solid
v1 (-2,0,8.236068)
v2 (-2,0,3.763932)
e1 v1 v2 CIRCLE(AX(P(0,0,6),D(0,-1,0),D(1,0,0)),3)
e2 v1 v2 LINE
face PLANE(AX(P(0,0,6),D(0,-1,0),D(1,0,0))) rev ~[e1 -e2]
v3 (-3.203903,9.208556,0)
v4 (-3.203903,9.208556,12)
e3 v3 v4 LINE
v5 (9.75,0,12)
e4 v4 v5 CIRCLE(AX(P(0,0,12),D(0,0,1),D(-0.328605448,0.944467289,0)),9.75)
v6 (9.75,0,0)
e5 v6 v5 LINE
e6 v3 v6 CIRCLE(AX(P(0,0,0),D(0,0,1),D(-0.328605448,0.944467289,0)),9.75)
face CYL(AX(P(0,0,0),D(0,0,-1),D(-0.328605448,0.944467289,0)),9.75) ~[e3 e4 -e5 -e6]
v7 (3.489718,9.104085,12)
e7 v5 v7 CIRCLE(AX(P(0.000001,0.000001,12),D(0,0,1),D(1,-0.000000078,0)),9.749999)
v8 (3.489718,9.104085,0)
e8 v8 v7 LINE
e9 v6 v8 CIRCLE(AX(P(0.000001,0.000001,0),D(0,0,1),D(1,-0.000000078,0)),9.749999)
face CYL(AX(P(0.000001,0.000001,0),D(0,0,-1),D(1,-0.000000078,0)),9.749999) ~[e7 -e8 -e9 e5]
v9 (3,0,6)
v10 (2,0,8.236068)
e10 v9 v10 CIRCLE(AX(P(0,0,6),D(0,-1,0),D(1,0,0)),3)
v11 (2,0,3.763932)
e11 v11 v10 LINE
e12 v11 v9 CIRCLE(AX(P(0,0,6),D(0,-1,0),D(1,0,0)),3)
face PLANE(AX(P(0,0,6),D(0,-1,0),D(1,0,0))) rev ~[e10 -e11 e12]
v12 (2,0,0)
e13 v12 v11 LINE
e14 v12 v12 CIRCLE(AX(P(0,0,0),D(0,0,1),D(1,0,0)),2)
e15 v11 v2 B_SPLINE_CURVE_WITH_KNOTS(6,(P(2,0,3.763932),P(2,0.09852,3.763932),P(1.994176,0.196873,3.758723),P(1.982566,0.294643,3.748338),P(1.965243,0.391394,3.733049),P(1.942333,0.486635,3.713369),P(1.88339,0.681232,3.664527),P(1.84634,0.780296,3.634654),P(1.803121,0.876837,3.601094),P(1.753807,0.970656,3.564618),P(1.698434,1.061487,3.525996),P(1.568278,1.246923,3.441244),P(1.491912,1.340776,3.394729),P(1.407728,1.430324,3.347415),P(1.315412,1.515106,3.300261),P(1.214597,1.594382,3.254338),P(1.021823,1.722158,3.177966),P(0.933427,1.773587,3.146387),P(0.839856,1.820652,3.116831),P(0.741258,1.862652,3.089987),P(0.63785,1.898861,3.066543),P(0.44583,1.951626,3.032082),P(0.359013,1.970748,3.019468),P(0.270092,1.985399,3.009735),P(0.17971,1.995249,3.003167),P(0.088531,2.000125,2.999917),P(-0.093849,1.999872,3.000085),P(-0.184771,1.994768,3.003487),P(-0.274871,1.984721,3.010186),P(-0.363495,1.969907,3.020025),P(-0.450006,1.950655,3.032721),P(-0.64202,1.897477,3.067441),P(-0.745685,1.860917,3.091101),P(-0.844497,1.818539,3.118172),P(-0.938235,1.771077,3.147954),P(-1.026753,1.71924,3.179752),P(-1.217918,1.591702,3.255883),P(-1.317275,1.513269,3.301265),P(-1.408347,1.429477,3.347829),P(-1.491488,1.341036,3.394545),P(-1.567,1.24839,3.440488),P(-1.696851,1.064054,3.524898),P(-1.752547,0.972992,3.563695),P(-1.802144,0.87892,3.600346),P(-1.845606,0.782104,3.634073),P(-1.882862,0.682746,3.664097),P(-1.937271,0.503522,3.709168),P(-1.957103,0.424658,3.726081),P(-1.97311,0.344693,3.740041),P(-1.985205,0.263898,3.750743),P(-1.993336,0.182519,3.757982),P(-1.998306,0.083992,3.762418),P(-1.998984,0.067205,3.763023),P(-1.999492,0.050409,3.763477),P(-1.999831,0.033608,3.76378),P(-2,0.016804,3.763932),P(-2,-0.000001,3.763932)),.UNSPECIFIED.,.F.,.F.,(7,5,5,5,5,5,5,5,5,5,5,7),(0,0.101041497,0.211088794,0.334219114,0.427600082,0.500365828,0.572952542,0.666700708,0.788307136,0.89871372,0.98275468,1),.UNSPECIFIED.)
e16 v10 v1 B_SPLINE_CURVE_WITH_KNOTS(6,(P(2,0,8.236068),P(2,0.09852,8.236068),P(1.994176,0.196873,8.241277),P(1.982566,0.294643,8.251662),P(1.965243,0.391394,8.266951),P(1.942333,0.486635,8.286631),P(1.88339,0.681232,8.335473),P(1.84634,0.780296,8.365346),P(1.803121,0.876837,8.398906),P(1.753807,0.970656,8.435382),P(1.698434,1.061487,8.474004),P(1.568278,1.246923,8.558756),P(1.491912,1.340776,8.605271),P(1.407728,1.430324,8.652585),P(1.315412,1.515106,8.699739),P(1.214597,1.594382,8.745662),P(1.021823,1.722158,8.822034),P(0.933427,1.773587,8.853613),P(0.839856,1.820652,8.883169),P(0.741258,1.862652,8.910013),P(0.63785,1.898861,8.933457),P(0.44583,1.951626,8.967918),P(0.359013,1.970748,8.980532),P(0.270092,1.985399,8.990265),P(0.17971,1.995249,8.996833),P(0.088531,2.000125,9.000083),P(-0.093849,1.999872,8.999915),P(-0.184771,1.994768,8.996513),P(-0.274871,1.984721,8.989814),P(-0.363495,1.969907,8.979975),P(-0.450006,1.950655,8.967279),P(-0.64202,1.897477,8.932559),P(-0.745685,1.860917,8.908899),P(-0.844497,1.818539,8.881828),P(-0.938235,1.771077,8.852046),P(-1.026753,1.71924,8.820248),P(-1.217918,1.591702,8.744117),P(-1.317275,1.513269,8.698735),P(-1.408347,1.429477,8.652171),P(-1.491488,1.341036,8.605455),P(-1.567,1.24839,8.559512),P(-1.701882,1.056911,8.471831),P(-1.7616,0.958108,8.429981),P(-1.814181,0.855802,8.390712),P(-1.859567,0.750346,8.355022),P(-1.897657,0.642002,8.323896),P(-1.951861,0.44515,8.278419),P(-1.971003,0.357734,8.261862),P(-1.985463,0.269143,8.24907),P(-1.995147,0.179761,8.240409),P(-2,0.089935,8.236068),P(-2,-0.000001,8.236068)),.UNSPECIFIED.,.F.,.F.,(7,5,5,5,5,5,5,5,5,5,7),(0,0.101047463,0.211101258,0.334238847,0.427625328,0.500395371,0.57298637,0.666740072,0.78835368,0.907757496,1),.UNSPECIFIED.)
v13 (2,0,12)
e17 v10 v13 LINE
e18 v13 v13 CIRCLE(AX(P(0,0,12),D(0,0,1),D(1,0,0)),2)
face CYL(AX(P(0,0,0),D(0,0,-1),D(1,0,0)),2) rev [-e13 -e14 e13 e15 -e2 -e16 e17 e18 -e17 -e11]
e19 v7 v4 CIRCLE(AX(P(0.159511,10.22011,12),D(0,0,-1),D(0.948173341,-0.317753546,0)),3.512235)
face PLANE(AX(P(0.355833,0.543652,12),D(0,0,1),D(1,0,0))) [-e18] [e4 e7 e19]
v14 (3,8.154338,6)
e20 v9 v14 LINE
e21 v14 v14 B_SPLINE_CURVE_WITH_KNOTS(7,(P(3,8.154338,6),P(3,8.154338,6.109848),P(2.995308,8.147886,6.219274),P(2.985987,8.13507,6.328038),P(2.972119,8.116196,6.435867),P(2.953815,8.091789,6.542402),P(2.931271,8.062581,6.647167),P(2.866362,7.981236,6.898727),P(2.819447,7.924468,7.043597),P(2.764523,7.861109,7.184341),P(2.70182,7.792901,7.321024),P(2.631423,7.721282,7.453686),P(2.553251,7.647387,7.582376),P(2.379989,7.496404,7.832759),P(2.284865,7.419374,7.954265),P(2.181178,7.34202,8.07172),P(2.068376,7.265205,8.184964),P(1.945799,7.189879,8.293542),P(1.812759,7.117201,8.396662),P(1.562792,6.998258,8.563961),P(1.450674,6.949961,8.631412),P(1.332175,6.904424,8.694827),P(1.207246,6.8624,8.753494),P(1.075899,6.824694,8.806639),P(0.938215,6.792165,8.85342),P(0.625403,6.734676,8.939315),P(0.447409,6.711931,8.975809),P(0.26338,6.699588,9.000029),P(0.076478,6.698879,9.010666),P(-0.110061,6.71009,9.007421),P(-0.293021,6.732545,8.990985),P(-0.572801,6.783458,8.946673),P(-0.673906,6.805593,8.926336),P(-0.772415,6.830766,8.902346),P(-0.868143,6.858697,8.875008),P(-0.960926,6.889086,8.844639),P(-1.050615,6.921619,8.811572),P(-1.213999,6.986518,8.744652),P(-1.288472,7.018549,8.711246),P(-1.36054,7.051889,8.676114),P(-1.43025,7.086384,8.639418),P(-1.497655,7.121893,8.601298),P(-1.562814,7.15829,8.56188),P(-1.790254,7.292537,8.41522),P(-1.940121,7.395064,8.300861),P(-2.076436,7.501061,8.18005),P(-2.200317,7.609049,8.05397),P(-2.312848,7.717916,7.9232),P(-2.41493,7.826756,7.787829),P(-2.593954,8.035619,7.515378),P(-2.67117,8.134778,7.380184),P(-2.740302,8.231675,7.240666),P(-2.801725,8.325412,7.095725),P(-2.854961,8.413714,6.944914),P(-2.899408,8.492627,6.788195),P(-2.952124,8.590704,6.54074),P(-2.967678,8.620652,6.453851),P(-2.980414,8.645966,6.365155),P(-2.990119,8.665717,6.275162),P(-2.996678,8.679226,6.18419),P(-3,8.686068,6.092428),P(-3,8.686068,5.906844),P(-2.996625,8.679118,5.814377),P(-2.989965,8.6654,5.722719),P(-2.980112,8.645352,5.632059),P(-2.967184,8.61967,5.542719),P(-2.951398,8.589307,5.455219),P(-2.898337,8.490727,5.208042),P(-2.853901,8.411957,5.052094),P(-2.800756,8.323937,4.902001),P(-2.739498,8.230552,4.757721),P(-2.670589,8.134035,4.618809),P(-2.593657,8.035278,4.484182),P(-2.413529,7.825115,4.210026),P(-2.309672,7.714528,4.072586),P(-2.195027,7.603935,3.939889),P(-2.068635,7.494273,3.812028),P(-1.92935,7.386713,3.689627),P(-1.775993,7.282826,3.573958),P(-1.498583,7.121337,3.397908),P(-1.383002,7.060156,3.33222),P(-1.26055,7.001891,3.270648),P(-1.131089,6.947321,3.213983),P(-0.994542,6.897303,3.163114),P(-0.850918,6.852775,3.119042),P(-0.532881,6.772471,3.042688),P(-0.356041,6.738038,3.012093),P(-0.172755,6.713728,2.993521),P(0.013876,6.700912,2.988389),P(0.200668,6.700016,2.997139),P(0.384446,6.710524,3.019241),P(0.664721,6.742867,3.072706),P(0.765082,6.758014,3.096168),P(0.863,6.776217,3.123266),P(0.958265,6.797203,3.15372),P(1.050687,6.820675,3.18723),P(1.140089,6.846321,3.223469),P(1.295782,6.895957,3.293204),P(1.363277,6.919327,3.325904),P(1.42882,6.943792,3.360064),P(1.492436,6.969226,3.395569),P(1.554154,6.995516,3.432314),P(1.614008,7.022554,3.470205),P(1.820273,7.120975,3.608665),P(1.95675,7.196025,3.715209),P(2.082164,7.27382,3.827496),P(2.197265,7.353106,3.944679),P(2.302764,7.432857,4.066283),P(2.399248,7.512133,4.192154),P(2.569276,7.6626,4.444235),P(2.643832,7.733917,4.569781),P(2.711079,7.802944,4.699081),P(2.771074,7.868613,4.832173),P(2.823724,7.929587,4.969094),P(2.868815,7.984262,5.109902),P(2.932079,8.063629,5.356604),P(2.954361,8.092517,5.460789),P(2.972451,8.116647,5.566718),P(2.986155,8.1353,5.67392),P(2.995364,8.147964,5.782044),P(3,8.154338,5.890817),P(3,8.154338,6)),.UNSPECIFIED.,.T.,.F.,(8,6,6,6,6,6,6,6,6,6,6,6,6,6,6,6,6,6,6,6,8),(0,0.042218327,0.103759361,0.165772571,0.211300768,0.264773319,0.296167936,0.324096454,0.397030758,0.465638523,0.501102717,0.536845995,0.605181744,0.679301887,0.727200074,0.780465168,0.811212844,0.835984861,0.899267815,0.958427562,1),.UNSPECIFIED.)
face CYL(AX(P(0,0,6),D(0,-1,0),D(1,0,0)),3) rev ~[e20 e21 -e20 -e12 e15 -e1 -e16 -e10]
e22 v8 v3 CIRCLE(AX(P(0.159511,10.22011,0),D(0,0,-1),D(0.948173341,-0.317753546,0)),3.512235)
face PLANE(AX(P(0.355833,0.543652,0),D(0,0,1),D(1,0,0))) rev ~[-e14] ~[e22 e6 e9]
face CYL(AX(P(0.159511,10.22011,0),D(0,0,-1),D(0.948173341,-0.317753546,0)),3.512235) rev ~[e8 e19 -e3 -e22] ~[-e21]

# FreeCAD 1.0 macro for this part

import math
import FreeCAD as App
import Part
import Sketcher
Q = App.Units.Quantity

doc = App.newDocument("Part")
body = doc.addObject("PartDesign::Body", "Body")

# Sketch on XY plane
sketch1 = body.newObject("Sketcher::SketchObject", "Sketch")
sketch1.AttachmentSupport = (doc.getObject("XY_Plane"), [""])
sketch1.MapMode = "FlatFace"
sketch1.addGeometry([
    Part.ArcOfCircle(Part.Circle(App.Vector(0, 0, 0), App.Vector(0, 0, 1), 9.75), math.radians(109.184154), math.radians(360)),
    Part.ArcOfCircle(Part.Circle(App.Vector(0.000001, 0.000001, 0), App.Vector(0, 0, 1), 9.749999), math.radians(-0.000004), math.radians(69.027508)),
    Part.ArcOfCircle(Part.Circle(App.Vector(0.159511, 10.22011, 0), App.Vector(0, 0, 1), 3.512235), math.radians(-163.261225), math.radians(-18.527123)),
    Part.Circle(App.Vector(0, 0, 0), App.Vector(0, 0, 1), 2),
], False)
sketch1.addConstraint([
    Sketcher.Constraint("Tangent", 0, 2, 1, 1),
    Sketcher.Constraint("Coincident", 1, 2, 2, 2),
    Sketcher.Constraint("Coincident", 2, 1, 0, 1),
    Sketcher.Constraint("Coincident", 0, 3, -1, 1),
    Sketcher.Constraint("Coincident", 3, 3, -1, 1),
    Sketcher.Constraint("Equal", 0, 1),
    Sketcher.Constraint("PointOnObject", 0, 2, -1),
    Sketcher.Constraint("Diameter", 3, Q("4 mm")),
    Sketcher.Constraint("Radius", 0, Q("9.75 mm")),
    Sketcher.Constraint("Radius", 2, Q("3.512235 mm")),
    Sketcher.Constraint("DistanceX", -1, 1, 2, 3, Q("0.159511 mm")),
    Sketcher.Constraint("DistanceY", -1, 1, 2, 3, Q("10.22011 mm")),
])
pad1 = body.newObject("PartDesign::Pad", "Pad")
pad1.Profile = sketch1
pad1.Length = 12

# Sketch on XZ plane
sketch2 = body.newObject("Sketcher::SketchObject", "Sketch001")
sketch2.AttachmentSupport = (doc.getObject("XZ_Plane"), [""])
sketch2.MapMode = "FlatFace"
sketch2.addGeometry(Part.Circle(App.Vector(0, 6, 0), App.Vector(0, 0, 1), 3), False)
sketch2.addConstraint([
    Sketcher.Constraint("PointOnObject", 0, 3, -2),
    Sketcher.Constraint("Diameter", 0, Q("6 mm")),
    Sketcher.Constraint("DistanceY", -1, 1, 0, 3, Q("6 mm")),
])
pocket1 = body.newObject("PartDesign::Pocket", "Pocket")
pocket1.Profile = sketch2
pocket1.Length = 25

doc.recompute()
